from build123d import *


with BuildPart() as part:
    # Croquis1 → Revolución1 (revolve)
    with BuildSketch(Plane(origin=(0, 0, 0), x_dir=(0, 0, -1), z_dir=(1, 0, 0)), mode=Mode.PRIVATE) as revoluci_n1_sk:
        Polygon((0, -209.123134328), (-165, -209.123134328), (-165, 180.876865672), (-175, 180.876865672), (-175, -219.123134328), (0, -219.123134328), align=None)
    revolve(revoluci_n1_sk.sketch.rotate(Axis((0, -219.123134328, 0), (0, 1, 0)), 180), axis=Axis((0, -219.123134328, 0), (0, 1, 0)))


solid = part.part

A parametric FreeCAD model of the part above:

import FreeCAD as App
import Part
import Sketcher

V = App.Vector


def add_polygon(sketch, points):
    """Adds a closed chain of lines whose ends are joined by coincident constraints."""
    first, n = sketch.GeometryCount, len(points)
    for a, b in zip(points, points[1:] + points[:1]):
        sketch.addGeometry(Part.LineSegment(App.Vector(*a, 0), App.Vector(*b, 0)), False)
    for i in range(n):
        sketch.addConstraint(Sketcher.Constraint("Coincident", first + i, 2, first + (i + 1) % n, 1))

doc = App.newDocument("Part")
body = doc.addObject("PartDesign::Body", "Body")

sketch1 = body.newObject("Sketcher::SketchObject", "Sketch")
sketch1.AttachmentSupport = (doc.getObject("YZ_Plane"), [""])
sketch1.MapMode = "FlatFace"
add_polygon(sketch1, [(-209.123134, 0), (-209.123134, 165), (180.876866, 165), (180.876866, 175), (-219.123134, 175), (-219.123134, 0)])
sketch1.addConstraint([
    Sketcher.Constraint("Vertical", 0),
    Sketcher.Constraint("Horizontal", 1),
    Sketcher.Constraint("Vertical", 2),
    Sketcher.Constraint("Horizontal", 3),
    Sketcher.Constraint("Vertical", 4),
    Sketcher.Constraint("Horizontal", 5),
    Sketcher.Constraint("PointOnObject", 4, 2, -1),
    Sketcher.Constraint("Equal", 5, 2),
    Sketcher.Constraint("DistanceX", 1, 1, 1, 2, 390.0),
    Sketcher.Constraint("DistanceX", 3, 2, 3, 1, 400.0),
    Sketcher.Constraint("DistanceY", 0, 1, 0, 2, 165.0),
    Sketcher.Constraint("DistanceX", 0, 2, -1, 1, 209.123134),
])
revolution = body.newObject("PartDesign::Revolution", "Revolution")
revolution.Profile = sketch1
revolution.ReferenceAxis = (sketch1, ["H_Axis"])
revolution.Angle = 360

doc.recompute()
